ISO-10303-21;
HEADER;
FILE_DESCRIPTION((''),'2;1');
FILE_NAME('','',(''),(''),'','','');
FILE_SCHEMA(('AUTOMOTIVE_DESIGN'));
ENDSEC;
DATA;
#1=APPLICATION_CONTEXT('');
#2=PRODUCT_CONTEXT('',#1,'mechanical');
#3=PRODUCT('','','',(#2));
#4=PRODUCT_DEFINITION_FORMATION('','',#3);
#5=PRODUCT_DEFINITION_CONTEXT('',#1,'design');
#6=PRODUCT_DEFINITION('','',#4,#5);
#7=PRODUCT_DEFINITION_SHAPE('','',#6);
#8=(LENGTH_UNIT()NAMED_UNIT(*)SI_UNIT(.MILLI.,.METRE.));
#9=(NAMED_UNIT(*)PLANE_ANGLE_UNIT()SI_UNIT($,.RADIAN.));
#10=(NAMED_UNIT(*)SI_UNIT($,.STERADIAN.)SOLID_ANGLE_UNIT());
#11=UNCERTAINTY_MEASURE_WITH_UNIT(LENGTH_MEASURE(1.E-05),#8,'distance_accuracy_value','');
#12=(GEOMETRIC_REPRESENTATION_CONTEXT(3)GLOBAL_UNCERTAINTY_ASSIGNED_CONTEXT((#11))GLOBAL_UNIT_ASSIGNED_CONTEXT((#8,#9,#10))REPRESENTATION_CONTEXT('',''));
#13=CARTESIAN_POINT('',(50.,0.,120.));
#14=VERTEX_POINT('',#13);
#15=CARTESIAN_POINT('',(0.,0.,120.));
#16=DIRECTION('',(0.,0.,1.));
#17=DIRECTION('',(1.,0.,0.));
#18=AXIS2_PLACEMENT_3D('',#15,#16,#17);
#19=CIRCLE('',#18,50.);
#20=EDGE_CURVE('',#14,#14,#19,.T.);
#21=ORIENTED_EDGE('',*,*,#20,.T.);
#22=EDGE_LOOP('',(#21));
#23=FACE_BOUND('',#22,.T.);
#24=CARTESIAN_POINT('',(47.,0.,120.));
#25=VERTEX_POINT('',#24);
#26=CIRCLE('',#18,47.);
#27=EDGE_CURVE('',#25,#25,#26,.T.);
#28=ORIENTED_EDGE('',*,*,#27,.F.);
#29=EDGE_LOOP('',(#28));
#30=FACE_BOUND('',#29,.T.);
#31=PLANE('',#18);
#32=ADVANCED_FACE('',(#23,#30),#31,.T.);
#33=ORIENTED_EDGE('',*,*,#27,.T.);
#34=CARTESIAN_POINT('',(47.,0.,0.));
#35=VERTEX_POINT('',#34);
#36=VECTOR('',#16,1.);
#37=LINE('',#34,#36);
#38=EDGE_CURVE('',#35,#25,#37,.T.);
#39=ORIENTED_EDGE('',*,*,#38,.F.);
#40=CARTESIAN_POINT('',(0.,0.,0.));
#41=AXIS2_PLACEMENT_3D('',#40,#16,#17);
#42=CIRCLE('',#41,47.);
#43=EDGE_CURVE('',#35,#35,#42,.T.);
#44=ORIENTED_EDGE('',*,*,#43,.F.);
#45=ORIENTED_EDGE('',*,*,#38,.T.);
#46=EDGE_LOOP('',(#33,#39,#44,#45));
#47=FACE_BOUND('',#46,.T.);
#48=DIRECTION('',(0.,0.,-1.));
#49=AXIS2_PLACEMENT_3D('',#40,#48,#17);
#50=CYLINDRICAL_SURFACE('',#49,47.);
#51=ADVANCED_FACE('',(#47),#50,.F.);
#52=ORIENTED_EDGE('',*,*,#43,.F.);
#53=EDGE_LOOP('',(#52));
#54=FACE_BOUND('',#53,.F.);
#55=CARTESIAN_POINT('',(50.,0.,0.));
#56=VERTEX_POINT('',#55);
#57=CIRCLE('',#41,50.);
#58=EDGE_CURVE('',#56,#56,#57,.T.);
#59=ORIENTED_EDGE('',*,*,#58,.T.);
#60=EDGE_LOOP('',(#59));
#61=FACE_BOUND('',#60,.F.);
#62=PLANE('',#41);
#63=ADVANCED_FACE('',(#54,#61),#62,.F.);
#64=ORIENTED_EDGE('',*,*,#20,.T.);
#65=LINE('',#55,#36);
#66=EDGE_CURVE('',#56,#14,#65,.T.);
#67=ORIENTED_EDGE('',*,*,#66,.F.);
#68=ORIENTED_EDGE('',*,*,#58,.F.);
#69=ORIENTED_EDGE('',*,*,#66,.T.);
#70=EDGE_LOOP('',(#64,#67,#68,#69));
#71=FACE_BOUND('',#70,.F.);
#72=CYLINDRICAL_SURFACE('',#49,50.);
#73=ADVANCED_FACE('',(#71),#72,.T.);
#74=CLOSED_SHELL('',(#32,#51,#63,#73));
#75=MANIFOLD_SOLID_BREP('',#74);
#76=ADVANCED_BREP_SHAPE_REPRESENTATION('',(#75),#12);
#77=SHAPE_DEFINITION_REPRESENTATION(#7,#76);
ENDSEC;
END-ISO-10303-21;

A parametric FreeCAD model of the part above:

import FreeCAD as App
import Part
import Sketcher

doc = App.newDocument("Part")
body = doc.addObject("PartDesign::Body", "Body")

# Sketch on XY plane
sketch1 = body.newObject("Sketcher::SketchObject", "Sketch")
sketch1.AttachmentSupport = (doc.getObject("XY_Plane"), [""])
sketch1.MapMode = "FlatFace"
sketch1.addGeometry([
    Part.Circle(App.Vector(0, 0, 0), App.Vector(0, 0, 1), 50),
    Part.Circle(App.Vector(0, 0, 0), App.Vector(0, 0, 1), 47),
], False)
sketch1.addConstraint([
    Sketcher.Constraint("Coincident", 0, 3, -1, 1),
    Sketcher.Constraint("Coincident", 1, 3, -1, 1),
    Sketcher.Constraint("Diameter", 0, 100.0),
    Sketcher.Constraint("Diameter", 1, 94.0),
])
pad1 = body.newObject("PartDesign::Pad", "Pad")
pad1.Profile = sketch1
pad1.Length = 120

doc.recompute()
